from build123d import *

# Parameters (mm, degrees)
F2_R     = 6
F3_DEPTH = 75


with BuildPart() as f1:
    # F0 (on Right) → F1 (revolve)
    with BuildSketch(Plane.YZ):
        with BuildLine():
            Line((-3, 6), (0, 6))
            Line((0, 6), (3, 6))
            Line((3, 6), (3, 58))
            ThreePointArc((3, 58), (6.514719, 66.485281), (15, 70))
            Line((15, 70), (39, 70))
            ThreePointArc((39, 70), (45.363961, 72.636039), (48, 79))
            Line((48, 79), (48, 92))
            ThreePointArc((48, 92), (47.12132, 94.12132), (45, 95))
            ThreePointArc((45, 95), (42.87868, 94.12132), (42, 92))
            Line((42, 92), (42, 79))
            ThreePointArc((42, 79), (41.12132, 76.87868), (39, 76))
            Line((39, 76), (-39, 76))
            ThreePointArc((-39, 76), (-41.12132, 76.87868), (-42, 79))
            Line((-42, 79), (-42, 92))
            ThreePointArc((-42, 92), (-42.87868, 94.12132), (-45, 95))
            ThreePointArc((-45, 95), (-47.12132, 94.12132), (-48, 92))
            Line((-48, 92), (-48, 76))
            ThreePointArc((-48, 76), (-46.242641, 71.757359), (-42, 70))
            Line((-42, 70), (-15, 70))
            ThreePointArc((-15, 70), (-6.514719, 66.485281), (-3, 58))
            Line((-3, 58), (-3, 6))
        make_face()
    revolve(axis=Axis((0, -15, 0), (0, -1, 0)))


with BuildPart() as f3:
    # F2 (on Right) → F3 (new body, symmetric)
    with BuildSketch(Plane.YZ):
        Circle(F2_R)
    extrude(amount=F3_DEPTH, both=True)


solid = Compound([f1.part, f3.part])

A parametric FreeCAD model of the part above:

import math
import FreeCAD as App
import Part
import Sketcher
from FreeCAD import Vector
Q = App.Units.Quantity

doc = App.newDocument("Part")
body = doc.addObject("PartDesign::Body", "Body")

# Sketch on YZ plane
sketch1 = body.newObject("Sketcher::SketchObject", "Sketch")
sketch1.AttachmentSupport = (doc.getObject("YZ_Plane"), [""])
sketch1.MapMode = "FlatFace"
sketch1.addGeometry(Part.LineSegment(Vector(-3, 6, 0), Vector(3, 6, 0)), False)
sketch1.addGeometry(Part.LineSegment(Vector(3, 6, 0), Vector(3, 58, 0)), False)
sketch1.addGeometry(Part.ArcOfCircle(Part.Circle(Vector(15, 58, 0), Vector(0, 0, 1), 12), math.radians(90), math.radians(180)), False)
sketch1.addGeometry(Part.LineSegment(Vector(15, 70, 0), Vector(39, 70, 0)), False)
sketch1.addGeometry(Part.ArcOfCircle(Part.Circle(Vector(39, 79, 0), Vector(0, 0, 1), 9), math.radians(-90), math.radians(0)), False)
sketch1.addGeometry(Part.LineSegment(Vector(48, 79, 0), Vector(48, 92, 0)), False)
sketch1.addGeometry(Part.ArcOfCircle(Part.Circle(Vector(45, 92, 0), Vector(0, 0, 1), 3), math.radians(0), math.radians(90)), False)
sketch1.addGeometry(Part.ArcOfCircle(Part.Circle(Vector(45, 92, 0), Vector(0, 0, 1), 3), math.radians(90), math.radians(180)), False)
sketch1.addGeometry(Part.LineSegment(Vector(42, 92, 0), Vector(42, 79, 0)), False)
sketch1.addGeometry(Part.ArcOfCircle(Part.Circle(Vector(39, 79, 0), Vector(0, 0, 1), 3), math.radians(-90), math.radians(0)), False)
sketch1.addGeometry(Part.LineSegment(Vector(39, 76, 0), Vector(-39, 76, 0)), False)
sketch1.addGeometry(Part.ArcOfCircle(Part.Circle(Vector(-39, 79, 0), Vector(0, 0, 1), 3), math.radians(-180), math.radians(-90)), False)
sketch1.addGeometry(Part.LineSegment(Vector(-42, 79, 0), Vector(-42, 92, 0)), False)
sketch1.addGeometry(Part.ArcOfCircle(Part.Circle(Vector(-45, 92, 0), Vector(0, 0, 1), 3), math.radians(0), math.radians(90)), False)
sketch1.addGeometry(Part.ArcOfCircle(Part.Circle(Vector(-45, 92, 0), Vector(0, 0, 1), 3), math.radians(90), math.radians(180)), False)
sketch1.addGeometry(Part.LineSegment(Vector(-48, 92, 0), Vector(-48, 76, 0)), False)
sketch1.addGeometry(Part.ArcOfCircle(Part.Circle(Vector(-42, 76, 0), Vector(0, 0, 1), 6), math.radians(180), math.radians(270)), False)
sketch1.addGeometry(Part.LineSegment(Vector(-42, 70, 0), Vector(-15, 70, 0)), False)
sketch1.addGeometry(Part.ArcOfCircle(Part.Circle(Vector(-15, 58, 0), Vector(0, 0, 1), 12), math.radians(0), math.radians(90)), False)
sketch1.addGeometry(Part.LineSegment(Vector(-3, 58, 0), Vector(-3, 6, 0)), False)
sketch1.addConstraint(Sketcher.Constraint("Coincident", 0, 2, 1, 1))
sketch1.addConstraint(Sketcher.Constraint("Tangent", 1, 2, 2, 2))
sketch1.addConstraint(Sketcher.Constraint("Tangent", 2, 1, 3, 1))
sketch1.addConstraint(Sketcher.Constraint("Tangent", 3, 2, 4, 1))
sketch1.addConstraint(Sketcher.Constraint("Tangent", 4, 2, 5, 1))
sketch1.addConstraint(Sketcher.Constraint("Tangent", 5, 2, 6, 1))
sketch1.addConstraint(Sketcher.Constraint("Tangent", 6, 2, 7, 1))
sketch1.addConstraint(Sketcher.Constraint("Tangent", 7, 2, 8, 1))
sketch1.addConstraint(Sketcher.Constraint("Tangent", 8, 2, 9, 2))
sketch1.addConstraint(Sketcher.Constraint("Tangent", 9, 1, 10, 1))
sketch1.addConstraint(Sketcher.Constraint("Tangent", 10, 2, 11, 2))
sketch1.addConstraint(Sketcher.Constraint("Tangent", 11, 1, 12, 1))
sketch1.addConstraint(Sketcher.Constraint("Tangent", 12, 2, 13, 1))
sketch1.addConstraint(Sketcher.Constraint("Tangent", 13, 2, 14, 1))
sketch1.addConstraint(Sketcher.Constraint("Tangent", 14, 2, 15, 1))
sketch1.addConstraint(Sketcher.Constraint("Tangent", 15, 2, 16, 1))
sketch1.addConstraint(Sketcher.Constraint("Tangent", 16, 2, 17, 1))
sketch1.addConstraint(Sketcher.Constraint("Tangent", 17, 2, 18, 2))
sketch1.addConstraint(Sketcher.Constraint("Tangent", 18, 1, 19, 1))
sketch1.addConstraint(Sketcher.Constraint("Coincident", 19, 2, 0, 1))
sketch1.addConstraint(Sketcher.Constraint("Horizontal", 0))
sketch1.addConstraint(Sketcher.Constraint("Vertical", 1))
sketch1.addConstraint(Sketcher.Constraint("Horizontal", 3))
sketch1.addConstraint(Sketcher.Constraint("Vertical", 5))
sketch1.addConstraint(Sketcher.Constraint("Vertical", 8))
sketch1.addConstraint(Sketcher.Constraint("Horizontal", 10))
sketch1.addConstraint(Sketcher.Constraint("Vertical", 12))
sketch1.addConstraint(Sketcher.Constraint("Vertical", 15))
sketch1.addConstraint(Sketcher.Constraint("Horizontal", 17))
sketch1.addConstraint(Sketcher.Constraint("Vertical", 19))
sketch1.addConstraint(Sketcher.Constraint("Coincident", 9, 3, 4, 3))
sketch1.addConstraint(Sketcher.Constraint("Equal", 6, 7))
sketch1.addConstraint(Sketcher.Constraint("Equal", 7, 9))
sketch1.addConstraint(Sketcher.Constraint("Equal", 9, 11))
sketch1.addConstraint(Sketcher.Constraint("Equal", 11, 13))
sketch1.addConstraint(Sketcher.Constraint("Equal", 13, 14))
sketch1.addConstraint(Sketcher.Constraint("Equal", 2, 18))
sketch1.addConstraint(Sketcher.Constraint("Symmetric", 6, 3, 13, 3, -2))
sketch1.addConstraint(Sketcher.Constraint("Symmetric", 2, 3, 18, 3, -2))
sketch1.addConstraint(Sketcher.Constraint("Horizontal", 16, 3, 9, 1))
sketch1.addConstraint(Sketcher.Constraint("Vertical", 7, 3, 6, 2))
sketch1.addConstraint(Sketcher.Constraint("Vertical", 14, 3, 13, 2))
sketch1.addConstraint(Sketcher.Constraint("Radius", 2, Q("12.000001 mm")))
sketch1.addConstraint(Sketcher.Constraint("Radius", 4, Q("9 mm")))
sketch1.addConstraint(Sketcher.Constraint("DistanceX", 0, 1, 0, 2, Q("6 mm")))
sketch1.addConstraint(Sketcher.Constraint("DistanceX", 3, 1, 3, 2, Q("24 mm")))
sketch1.addConstraint(Sketcher.Constraint("DistanceY", 1, 1, 1, 2, Q("52 mm")))
sketch1.addConstraint(Sketcher.Constraint("DistanceY", 5, 1, 5, 2, Q("13 mm")))
sketch1.addConstraint(Sketcher.Constraint("DistanceY", -1, 1, 2, 3, Q("57.999999 mm")))
revolution = body.newObject("PartDesign::Revolution", "Revolution")
revolution.Profile = sketch1
revolution.ReferenceAxis = (sketch1, ["H_Axis"])
revolution.Angle = 360
body2 = doc.addObject("PartDesign::Body", "Body001")

# Sketch on YZ plane
sketch2 = body2.newObject("Sketcher::SketchObject", "Sketch001")
sketch2.AttachmentSupport = (doc.getObject("YZ_Plane001"), [""])
sketch2.MapMode = "FlatFace"
sketch2.addGeometry(Part.Circle(Vector(0, 0, 0), Vector(0, 0, 1), 6), False)
sketch2.addConstraint(Sketcher.Constraint("Coincident", 0, 3, -1, 1))
sketch2.addConstraint(Sketcher.Constraint("Diameter", 0, Q("12 mm")))
pad1 = body2.newObject("PartDesign::Pad", "Pad")
pad1.Profile = sketch2
pad1.Length = 150
pad1.Midplane = True

doc.recompute()
